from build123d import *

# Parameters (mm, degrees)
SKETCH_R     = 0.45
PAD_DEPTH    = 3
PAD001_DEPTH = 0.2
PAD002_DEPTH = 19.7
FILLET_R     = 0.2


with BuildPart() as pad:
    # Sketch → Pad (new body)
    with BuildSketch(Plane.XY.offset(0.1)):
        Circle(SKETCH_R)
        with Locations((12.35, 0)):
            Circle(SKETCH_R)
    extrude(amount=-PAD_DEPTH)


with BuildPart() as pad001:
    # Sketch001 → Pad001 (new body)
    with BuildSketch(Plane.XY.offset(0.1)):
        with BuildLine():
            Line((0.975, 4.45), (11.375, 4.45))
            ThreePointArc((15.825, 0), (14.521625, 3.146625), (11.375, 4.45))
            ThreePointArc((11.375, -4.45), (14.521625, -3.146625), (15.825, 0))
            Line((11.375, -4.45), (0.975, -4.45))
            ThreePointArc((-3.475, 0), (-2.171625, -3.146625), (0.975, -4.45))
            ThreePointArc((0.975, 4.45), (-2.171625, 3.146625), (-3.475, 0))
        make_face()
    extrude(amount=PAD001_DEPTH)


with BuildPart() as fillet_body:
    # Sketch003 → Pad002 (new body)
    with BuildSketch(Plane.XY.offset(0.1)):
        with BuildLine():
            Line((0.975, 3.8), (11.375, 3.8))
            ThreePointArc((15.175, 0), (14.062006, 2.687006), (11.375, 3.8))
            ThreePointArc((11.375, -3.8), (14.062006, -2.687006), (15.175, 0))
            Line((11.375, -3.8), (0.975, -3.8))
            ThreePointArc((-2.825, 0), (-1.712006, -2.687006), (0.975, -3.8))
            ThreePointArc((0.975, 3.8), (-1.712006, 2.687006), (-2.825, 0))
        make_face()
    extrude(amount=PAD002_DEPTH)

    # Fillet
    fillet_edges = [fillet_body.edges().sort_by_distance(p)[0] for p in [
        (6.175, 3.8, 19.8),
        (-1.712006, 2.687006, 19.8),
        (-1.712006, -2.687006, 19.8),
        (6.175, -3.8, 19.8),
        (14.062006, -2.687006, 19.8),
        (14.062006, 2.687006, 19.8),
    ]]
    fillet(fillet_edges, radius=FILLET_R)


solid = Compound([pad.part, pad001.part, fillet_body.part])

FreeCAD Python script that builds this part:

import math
import FreeCAD as App
import Part
import Sketcher

V = App.Vector
Q = App.Units.Quantity


def edges_at(feature, points):
    """Names of the edges that pass closest to the given points."""
    edges = feature.Shape.Edges
    near = lambda p: min(range(len(edges)), key=lambda i: edges[i].distToShape(Part.Vertex(*p))[0])
    return sorted({f"Edge{near(p) + 1}" for p in points})

doc = App.newDocument("Part")
body = doc.addObject("PartDesign::Body", "Body")
body.AllowCompound = True

sketch1 = body.newObject("Sketcher::SketchObject", "Sketch")
sketch1.AttachmentSupport = (doc.getObject("XY_Plane"), [""])
sketch1.MapMode = "FlatFace"
sketch1.AttachmentOffset = App.Placement(V(0, 0, 0.1), App.Rotation())
sketch1.addGeometry([
    Part.Circle(V(0, 0, 0), V(0, 0, 1), 0.45),
    Part.Circle(V(12.35, 0, 0), V(0, 0, 1), 0.45),
], False)
sketch1.addConstraint([
    Sketcher.Constraint("Coincident", 0, 3, -1, 1),
    Sketcher.Constraint("Equal", 0, 1),
    Sketcher.Constraint("PointOnObject", 1, 3, -1),
    Sketcher.Constraint("Diameter", 0, Q("0.9 mm")),
    Sketcher.Constraint("DistanceX", -1, 1, 1, 3, Q("12.35 mm")),
])
pad1 = body.newObject("PartDesign::Pad", "Pad")
pad1.Profile = sketch1
pad1.Length = 3
pad1.Reversed = True
body2 = doc.addObject("PartDesign::Body", "Body001")

sketch2 = body2.newObject("Sketcher::SketchObject", "Sketch001")
sketch2.AttachmentSupport = (doc.getObject("XY_Plane001"), [""])
sketch2.MapMode = "FlatFace"
sketch2.AttachmentOffset = App.Placement(V(0, 0, 0.1), App.Rotation())
sketch2.addGeometry([
    Part.LineSegment(V(11.4, 4.5, 0), V(1, 4.5, 0)),
    Part.ArcOfCircle(Part.Circle(V(1, 0, 0), V(0, 0, 1), 4.5), math.radians(90), math.radians(180)),
    Part.ArcOfCircle(Part.Circle(V(1, 0, 0), V(0, 0, 1), 4.5), math.radians(-180), math.radians(-90)),
    Part.LineSegment(V(1, -4.5, 0), V(11.4, -4.5, 0)),
    Part.ArcOfCircle(Part.Circle(V(11.4, 0, 0), V(0, 0, 1), 4.5), math.radians(-90), math.radians(0)),
    Part.ArcOfCircle(Part.Circle(V(11.4, 0, 0), V(0, 0, 1), 4.5), math.radians(0), math.radians(90)),
], False)
sketch2.addConstraint([
    Sketcher.Constraint("Tangent", 0, 2, 1, 1),
    Sketcher.Constraint("Tangent", 1, 2, 2, 1),
    Sketcher.Constraint("Tangent", 2, 2, 3, 1),
    Sketcher.Constraint("Tangent", 3, 2, 4, 1),
    Sketcher.Constraint("Tangent", 4, 2, 5, 1),
    Sketcher.Constraint("Tangent", 5, 2, 0, 1),
    Sketcher.Constraint("Horizontal", 0),
    Sketcher.Constraint("Horizontal", 3),
    Sketcher.Constraint("Equal", 1, 2),
    Sketcher.Constraint("Equal", 2, 4),
    Sketcher.Constraint("PointOnObject", 1, 3, -1),
    Sketcher.Constraint("PointOnObject", 1, 2, -1),
    Sketcher.Constraint("PointOnObject", 4, 2, -1),
    Sketcher.Constraint("Radius", 1, Q("4.450001 mm")),
    Sketcher.Constraint("DistanceX", 0, 2, 0, 1, Q("10.4 mm")),
    Sketcher.Constraint("DistanceX", -1, 1, 1, 3, Q("0.975001 mm")),
])
pad2 = body2.newObject("PartDesign::Pad", "Pad001")
pad2.Profile = sketch2
pad2.Length = 0.2
body3 = doc.addObject("PartDesign::Body", "Body002")

sketch3 = body3.newObject("Sketcher::SketchObject", "Sketch002")
sketch3.AttachmentSupport = (doc.getObject("XY_Plane002"), [""])
sketch3.MapMode = "FlatFace"
sketch3.AttachmentOffset = App.Placement(V(0, 0, 0.1), App.Rotation())
sketch3.addGeometry([
    Part.LineSegment(V(11.4, 3.8, 0), V(1, 3.8, 0)),
    Part.ArcOfCircle(Part.Circle(V(1, 0, 0), V(0, 0, 1), 3.8), math.radians(90), math.radians(180)),
    Part.ArcOfCircle(Part.Circle(V(1, 0, 0), V(0, 0, 1), 3.8), math.radians(180), math.radians(270)),
    Part.LineSegment(V(1, -3.8, 0), V(11.4, -3.8, 0)),
    Part.ArcOfCircle(Part.Circle(V(11.4, 0, 0), V(0, 0, 1), 3.8), math.radians(-90), math.radians(0)),
    Part.ArcOfCircle(Part.Circle(V(11.4, 0, 0), V(0, 0, 1), 3.8), math.radians(0), math.radians(90)),
], False)
sketch3.addConstraint([
    Sketcher.Constraint("Tangent", 0, 2, 1, 1),
    Sketcher.Constraint("Tangent", 1, 2, 2, 1),
    Sketcher.Constraint("Tangent", 2, 2, 3, 1),
    Sketcher.Constraint("Tangent", 3, 2, 4, 1),
    Sketcher.Constraint("Tangent", 4, 2, 5, 1),
    Sketcher.Constraint("Tangent", 5, 2, 0, 1),
    Sketcher.Constraint("Horizontal", 0),
    Sketcher.Constraint("Horizontal", 3),
    Sketcher.Constraint("Equal", 1, 2),
    Sketcher.Constraint("Equal", 2, 4),
    Sketcher.Constraint("PointOnObject", 1, 3, -1),
    Sketcher.Constraint("PointOnObject", 1, 2, -1),
    Sketcher.Constraint("PointOnObject", 4, 2, -1),
    Sketcher.Constraint("Radius", 1, Q("3.799999 mm")),
    Sketcher.Constraint("DistanceX", 0, 2, 0, 1, Q("10.4 mm")),
    Sketcher.Constraint("DistanceX", -1, 1, 1, 3, Q("0.974999 mm")),
])
pad3 = body3.newObject("PartDesign::Pad", "Pad002")
pad3.Profile = sketch3
pad3.Length = 19.7
doc.recompute()

fillet = body3.newObject("PartDesign::Fillet", "Fillet")
fillet.Base = (pad3, edges_at(pad3, [
    (6.175, 3.8, 19.8),
    (-1.712, 2.687, 19.8),
    (-1.712, -2.687, 19.8),
    (6.175, -3.8, 19.8),
    (14.062, -2.687, 19.8),
    (14.062, 2.687, 19.8),
]))
fillet.Radius = 0.2

doc.recompute()
